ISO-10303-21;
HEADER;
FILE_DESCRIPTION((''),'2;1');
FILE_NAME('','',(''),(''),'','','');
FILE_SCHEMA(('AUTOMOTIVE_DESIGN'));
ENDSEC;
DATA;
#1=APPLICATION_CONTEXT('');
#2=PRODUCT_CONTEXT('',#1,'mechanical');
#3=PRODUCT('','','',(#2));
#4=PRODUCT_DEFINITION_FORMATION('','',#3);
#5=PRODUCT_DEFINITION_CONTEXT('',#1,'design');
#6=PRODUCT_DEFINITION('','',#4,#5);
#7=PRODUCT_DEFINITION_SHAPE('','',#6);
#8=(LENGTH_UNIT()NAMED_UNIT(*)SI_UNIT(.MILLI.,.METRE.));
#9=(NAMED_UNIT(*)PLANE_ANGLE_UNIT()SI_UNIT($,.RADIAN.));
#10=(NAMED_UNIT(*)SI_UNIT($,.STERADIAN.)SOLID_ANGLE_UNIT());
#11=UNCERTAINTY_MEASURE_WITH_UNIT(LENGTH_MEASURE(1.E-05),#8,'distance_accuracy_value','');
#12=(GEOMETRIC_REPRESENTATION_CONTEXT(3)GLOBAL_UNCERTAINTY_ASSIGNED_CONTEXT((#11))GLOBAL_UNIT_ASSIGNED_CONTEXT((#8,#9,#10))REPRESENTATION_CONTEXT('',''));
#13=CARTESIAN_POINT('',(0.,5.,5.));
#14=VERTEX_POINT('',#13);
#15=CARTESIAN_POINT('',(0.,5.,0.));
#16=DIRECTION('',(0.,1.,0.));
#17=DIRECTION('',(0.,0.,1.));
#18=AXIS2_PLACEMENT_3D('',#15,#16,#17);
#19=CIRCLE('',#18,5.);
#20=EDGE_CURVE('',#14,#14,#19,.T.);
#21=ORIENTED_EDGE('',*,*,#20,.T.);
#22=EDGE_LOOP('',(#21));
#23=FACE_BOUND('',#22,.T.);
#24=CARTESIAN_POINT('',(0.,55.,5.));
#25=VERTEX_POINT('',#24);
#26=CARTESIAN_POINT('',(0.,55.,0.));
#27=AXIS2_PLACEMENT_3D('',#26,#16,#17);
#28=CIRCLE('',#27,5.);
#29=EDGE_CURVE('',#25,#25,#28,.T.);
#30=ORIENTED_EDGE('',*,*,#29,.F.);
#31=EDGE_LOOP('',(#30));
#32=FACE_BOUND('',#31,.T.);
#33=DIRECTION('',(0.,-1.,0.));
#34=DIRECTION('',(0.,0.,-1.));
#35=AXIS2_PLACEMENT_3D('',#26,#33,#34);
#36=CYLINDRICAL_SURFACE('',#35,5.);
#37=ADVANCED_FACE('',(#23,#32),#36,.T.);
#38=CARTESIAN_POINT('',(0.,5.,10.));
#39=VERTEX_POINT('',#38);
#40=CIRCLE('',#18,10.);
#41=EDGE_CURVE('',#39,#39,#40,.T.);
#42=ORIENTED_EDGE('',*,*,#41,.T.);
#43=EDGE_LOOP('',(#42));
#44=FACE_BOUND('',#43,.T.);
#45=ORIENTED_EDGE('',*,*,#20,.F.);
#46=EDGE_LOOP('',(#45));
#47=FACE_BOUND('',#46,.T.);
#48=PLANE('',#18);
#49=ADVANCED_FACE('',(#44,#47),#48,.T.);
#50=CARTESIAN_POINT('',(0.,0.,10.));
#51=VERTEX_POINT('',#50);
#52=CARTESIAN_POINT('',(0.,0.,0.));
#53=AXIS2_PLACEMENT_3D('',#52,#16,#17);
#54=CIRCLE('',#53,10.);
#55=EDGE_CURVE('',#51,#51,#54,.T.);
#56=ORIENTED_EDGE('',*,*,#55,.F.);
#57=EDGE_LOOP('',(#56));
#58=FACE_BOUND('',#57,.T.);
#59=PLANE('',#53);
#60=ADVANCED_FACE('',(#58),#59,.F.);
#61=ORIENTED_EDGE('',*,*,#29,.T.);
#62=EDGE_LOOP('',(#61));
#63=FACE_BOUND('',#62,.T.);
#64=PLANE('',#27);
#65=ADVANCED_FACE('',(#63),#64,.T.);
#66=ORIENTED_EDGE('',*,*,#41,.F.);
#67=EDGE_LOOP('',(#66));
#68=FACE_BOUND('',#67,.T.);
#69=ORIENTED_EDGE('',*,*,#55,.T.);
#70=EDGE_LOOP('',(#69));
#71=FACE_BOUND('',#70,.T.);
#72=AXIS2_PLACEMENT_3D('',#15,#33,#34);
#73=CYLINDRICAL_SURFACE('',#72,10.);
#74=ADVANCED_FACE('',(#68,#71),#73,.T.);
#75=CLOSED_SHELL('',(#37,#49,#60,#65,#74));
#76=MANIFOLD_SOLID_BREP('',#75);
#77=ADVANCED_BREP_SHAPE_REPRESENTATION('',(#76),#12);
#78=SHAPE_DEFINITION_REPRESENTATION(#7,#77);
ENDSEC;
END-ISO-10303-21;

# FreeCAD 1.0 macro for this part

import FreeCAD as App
import Part
import Sketcher

doc = App.newDocument("Part")
body = doc.addObject("PartDesign::Body", "Body")

# Sketch on XZ plane
sketch1 = doc.addObject("Sketcher::SketchObject", "Sketch")
body.addObject(sketch1)
sketch1.AttachmentSupport = (doc.XZ_Plane, [""])
sketch1.MapMode = "FlatFace"
sketch1.addGeometry(Part.Circle(App.Vector(0, 0, 0), App.Vector(0, 0, 1), 10), False)
sketch1.addConstraint(Sketcher.Constraint("Coincident", 0, 3, -1, 1))
sketch1.addConstraint(Sketcher.Constraint("Diameter", 0, 20.0))
pad1 = doc.addObject("PartDesign::Pad", "Pad")
body.addObject(pad1)
pad1.Profile = sketch1
pad1.Length = 5
pad1.Reversed = True

# Sketch on XZ plane
sketch2 = doc.addObject("Sketcher::SketchObject", "Sketch001")
body.addObject(sketch2)
sketch2.AttachmentSupport = (doc.XZ_Plane, [""])
sketch2.MapMode = "FlatFace"
sketch2.AttachmentOffset = App.Placement(App.Vector(0, 0, -5), App.Rotation())
sketch2.addGeometry(Part.Circle(App.Vector(0, 0, 0), App.Vector(0, 0, 1), 5), False)
sketch2.addConstraint(Sketcher.Constraint("Coincident", 0, 3, -1, 1))
sketch2.addConstraint(Sketcher.Constraint("Diameter", 0, 10.0))
pad2 = doc.addObject("PartDesign::Pad", "Pad001")
body.addObject(pad2)
pad2.Profile = sketch2
pad2.Length = 50
pad2.Reversed = True

doc.recompute()
